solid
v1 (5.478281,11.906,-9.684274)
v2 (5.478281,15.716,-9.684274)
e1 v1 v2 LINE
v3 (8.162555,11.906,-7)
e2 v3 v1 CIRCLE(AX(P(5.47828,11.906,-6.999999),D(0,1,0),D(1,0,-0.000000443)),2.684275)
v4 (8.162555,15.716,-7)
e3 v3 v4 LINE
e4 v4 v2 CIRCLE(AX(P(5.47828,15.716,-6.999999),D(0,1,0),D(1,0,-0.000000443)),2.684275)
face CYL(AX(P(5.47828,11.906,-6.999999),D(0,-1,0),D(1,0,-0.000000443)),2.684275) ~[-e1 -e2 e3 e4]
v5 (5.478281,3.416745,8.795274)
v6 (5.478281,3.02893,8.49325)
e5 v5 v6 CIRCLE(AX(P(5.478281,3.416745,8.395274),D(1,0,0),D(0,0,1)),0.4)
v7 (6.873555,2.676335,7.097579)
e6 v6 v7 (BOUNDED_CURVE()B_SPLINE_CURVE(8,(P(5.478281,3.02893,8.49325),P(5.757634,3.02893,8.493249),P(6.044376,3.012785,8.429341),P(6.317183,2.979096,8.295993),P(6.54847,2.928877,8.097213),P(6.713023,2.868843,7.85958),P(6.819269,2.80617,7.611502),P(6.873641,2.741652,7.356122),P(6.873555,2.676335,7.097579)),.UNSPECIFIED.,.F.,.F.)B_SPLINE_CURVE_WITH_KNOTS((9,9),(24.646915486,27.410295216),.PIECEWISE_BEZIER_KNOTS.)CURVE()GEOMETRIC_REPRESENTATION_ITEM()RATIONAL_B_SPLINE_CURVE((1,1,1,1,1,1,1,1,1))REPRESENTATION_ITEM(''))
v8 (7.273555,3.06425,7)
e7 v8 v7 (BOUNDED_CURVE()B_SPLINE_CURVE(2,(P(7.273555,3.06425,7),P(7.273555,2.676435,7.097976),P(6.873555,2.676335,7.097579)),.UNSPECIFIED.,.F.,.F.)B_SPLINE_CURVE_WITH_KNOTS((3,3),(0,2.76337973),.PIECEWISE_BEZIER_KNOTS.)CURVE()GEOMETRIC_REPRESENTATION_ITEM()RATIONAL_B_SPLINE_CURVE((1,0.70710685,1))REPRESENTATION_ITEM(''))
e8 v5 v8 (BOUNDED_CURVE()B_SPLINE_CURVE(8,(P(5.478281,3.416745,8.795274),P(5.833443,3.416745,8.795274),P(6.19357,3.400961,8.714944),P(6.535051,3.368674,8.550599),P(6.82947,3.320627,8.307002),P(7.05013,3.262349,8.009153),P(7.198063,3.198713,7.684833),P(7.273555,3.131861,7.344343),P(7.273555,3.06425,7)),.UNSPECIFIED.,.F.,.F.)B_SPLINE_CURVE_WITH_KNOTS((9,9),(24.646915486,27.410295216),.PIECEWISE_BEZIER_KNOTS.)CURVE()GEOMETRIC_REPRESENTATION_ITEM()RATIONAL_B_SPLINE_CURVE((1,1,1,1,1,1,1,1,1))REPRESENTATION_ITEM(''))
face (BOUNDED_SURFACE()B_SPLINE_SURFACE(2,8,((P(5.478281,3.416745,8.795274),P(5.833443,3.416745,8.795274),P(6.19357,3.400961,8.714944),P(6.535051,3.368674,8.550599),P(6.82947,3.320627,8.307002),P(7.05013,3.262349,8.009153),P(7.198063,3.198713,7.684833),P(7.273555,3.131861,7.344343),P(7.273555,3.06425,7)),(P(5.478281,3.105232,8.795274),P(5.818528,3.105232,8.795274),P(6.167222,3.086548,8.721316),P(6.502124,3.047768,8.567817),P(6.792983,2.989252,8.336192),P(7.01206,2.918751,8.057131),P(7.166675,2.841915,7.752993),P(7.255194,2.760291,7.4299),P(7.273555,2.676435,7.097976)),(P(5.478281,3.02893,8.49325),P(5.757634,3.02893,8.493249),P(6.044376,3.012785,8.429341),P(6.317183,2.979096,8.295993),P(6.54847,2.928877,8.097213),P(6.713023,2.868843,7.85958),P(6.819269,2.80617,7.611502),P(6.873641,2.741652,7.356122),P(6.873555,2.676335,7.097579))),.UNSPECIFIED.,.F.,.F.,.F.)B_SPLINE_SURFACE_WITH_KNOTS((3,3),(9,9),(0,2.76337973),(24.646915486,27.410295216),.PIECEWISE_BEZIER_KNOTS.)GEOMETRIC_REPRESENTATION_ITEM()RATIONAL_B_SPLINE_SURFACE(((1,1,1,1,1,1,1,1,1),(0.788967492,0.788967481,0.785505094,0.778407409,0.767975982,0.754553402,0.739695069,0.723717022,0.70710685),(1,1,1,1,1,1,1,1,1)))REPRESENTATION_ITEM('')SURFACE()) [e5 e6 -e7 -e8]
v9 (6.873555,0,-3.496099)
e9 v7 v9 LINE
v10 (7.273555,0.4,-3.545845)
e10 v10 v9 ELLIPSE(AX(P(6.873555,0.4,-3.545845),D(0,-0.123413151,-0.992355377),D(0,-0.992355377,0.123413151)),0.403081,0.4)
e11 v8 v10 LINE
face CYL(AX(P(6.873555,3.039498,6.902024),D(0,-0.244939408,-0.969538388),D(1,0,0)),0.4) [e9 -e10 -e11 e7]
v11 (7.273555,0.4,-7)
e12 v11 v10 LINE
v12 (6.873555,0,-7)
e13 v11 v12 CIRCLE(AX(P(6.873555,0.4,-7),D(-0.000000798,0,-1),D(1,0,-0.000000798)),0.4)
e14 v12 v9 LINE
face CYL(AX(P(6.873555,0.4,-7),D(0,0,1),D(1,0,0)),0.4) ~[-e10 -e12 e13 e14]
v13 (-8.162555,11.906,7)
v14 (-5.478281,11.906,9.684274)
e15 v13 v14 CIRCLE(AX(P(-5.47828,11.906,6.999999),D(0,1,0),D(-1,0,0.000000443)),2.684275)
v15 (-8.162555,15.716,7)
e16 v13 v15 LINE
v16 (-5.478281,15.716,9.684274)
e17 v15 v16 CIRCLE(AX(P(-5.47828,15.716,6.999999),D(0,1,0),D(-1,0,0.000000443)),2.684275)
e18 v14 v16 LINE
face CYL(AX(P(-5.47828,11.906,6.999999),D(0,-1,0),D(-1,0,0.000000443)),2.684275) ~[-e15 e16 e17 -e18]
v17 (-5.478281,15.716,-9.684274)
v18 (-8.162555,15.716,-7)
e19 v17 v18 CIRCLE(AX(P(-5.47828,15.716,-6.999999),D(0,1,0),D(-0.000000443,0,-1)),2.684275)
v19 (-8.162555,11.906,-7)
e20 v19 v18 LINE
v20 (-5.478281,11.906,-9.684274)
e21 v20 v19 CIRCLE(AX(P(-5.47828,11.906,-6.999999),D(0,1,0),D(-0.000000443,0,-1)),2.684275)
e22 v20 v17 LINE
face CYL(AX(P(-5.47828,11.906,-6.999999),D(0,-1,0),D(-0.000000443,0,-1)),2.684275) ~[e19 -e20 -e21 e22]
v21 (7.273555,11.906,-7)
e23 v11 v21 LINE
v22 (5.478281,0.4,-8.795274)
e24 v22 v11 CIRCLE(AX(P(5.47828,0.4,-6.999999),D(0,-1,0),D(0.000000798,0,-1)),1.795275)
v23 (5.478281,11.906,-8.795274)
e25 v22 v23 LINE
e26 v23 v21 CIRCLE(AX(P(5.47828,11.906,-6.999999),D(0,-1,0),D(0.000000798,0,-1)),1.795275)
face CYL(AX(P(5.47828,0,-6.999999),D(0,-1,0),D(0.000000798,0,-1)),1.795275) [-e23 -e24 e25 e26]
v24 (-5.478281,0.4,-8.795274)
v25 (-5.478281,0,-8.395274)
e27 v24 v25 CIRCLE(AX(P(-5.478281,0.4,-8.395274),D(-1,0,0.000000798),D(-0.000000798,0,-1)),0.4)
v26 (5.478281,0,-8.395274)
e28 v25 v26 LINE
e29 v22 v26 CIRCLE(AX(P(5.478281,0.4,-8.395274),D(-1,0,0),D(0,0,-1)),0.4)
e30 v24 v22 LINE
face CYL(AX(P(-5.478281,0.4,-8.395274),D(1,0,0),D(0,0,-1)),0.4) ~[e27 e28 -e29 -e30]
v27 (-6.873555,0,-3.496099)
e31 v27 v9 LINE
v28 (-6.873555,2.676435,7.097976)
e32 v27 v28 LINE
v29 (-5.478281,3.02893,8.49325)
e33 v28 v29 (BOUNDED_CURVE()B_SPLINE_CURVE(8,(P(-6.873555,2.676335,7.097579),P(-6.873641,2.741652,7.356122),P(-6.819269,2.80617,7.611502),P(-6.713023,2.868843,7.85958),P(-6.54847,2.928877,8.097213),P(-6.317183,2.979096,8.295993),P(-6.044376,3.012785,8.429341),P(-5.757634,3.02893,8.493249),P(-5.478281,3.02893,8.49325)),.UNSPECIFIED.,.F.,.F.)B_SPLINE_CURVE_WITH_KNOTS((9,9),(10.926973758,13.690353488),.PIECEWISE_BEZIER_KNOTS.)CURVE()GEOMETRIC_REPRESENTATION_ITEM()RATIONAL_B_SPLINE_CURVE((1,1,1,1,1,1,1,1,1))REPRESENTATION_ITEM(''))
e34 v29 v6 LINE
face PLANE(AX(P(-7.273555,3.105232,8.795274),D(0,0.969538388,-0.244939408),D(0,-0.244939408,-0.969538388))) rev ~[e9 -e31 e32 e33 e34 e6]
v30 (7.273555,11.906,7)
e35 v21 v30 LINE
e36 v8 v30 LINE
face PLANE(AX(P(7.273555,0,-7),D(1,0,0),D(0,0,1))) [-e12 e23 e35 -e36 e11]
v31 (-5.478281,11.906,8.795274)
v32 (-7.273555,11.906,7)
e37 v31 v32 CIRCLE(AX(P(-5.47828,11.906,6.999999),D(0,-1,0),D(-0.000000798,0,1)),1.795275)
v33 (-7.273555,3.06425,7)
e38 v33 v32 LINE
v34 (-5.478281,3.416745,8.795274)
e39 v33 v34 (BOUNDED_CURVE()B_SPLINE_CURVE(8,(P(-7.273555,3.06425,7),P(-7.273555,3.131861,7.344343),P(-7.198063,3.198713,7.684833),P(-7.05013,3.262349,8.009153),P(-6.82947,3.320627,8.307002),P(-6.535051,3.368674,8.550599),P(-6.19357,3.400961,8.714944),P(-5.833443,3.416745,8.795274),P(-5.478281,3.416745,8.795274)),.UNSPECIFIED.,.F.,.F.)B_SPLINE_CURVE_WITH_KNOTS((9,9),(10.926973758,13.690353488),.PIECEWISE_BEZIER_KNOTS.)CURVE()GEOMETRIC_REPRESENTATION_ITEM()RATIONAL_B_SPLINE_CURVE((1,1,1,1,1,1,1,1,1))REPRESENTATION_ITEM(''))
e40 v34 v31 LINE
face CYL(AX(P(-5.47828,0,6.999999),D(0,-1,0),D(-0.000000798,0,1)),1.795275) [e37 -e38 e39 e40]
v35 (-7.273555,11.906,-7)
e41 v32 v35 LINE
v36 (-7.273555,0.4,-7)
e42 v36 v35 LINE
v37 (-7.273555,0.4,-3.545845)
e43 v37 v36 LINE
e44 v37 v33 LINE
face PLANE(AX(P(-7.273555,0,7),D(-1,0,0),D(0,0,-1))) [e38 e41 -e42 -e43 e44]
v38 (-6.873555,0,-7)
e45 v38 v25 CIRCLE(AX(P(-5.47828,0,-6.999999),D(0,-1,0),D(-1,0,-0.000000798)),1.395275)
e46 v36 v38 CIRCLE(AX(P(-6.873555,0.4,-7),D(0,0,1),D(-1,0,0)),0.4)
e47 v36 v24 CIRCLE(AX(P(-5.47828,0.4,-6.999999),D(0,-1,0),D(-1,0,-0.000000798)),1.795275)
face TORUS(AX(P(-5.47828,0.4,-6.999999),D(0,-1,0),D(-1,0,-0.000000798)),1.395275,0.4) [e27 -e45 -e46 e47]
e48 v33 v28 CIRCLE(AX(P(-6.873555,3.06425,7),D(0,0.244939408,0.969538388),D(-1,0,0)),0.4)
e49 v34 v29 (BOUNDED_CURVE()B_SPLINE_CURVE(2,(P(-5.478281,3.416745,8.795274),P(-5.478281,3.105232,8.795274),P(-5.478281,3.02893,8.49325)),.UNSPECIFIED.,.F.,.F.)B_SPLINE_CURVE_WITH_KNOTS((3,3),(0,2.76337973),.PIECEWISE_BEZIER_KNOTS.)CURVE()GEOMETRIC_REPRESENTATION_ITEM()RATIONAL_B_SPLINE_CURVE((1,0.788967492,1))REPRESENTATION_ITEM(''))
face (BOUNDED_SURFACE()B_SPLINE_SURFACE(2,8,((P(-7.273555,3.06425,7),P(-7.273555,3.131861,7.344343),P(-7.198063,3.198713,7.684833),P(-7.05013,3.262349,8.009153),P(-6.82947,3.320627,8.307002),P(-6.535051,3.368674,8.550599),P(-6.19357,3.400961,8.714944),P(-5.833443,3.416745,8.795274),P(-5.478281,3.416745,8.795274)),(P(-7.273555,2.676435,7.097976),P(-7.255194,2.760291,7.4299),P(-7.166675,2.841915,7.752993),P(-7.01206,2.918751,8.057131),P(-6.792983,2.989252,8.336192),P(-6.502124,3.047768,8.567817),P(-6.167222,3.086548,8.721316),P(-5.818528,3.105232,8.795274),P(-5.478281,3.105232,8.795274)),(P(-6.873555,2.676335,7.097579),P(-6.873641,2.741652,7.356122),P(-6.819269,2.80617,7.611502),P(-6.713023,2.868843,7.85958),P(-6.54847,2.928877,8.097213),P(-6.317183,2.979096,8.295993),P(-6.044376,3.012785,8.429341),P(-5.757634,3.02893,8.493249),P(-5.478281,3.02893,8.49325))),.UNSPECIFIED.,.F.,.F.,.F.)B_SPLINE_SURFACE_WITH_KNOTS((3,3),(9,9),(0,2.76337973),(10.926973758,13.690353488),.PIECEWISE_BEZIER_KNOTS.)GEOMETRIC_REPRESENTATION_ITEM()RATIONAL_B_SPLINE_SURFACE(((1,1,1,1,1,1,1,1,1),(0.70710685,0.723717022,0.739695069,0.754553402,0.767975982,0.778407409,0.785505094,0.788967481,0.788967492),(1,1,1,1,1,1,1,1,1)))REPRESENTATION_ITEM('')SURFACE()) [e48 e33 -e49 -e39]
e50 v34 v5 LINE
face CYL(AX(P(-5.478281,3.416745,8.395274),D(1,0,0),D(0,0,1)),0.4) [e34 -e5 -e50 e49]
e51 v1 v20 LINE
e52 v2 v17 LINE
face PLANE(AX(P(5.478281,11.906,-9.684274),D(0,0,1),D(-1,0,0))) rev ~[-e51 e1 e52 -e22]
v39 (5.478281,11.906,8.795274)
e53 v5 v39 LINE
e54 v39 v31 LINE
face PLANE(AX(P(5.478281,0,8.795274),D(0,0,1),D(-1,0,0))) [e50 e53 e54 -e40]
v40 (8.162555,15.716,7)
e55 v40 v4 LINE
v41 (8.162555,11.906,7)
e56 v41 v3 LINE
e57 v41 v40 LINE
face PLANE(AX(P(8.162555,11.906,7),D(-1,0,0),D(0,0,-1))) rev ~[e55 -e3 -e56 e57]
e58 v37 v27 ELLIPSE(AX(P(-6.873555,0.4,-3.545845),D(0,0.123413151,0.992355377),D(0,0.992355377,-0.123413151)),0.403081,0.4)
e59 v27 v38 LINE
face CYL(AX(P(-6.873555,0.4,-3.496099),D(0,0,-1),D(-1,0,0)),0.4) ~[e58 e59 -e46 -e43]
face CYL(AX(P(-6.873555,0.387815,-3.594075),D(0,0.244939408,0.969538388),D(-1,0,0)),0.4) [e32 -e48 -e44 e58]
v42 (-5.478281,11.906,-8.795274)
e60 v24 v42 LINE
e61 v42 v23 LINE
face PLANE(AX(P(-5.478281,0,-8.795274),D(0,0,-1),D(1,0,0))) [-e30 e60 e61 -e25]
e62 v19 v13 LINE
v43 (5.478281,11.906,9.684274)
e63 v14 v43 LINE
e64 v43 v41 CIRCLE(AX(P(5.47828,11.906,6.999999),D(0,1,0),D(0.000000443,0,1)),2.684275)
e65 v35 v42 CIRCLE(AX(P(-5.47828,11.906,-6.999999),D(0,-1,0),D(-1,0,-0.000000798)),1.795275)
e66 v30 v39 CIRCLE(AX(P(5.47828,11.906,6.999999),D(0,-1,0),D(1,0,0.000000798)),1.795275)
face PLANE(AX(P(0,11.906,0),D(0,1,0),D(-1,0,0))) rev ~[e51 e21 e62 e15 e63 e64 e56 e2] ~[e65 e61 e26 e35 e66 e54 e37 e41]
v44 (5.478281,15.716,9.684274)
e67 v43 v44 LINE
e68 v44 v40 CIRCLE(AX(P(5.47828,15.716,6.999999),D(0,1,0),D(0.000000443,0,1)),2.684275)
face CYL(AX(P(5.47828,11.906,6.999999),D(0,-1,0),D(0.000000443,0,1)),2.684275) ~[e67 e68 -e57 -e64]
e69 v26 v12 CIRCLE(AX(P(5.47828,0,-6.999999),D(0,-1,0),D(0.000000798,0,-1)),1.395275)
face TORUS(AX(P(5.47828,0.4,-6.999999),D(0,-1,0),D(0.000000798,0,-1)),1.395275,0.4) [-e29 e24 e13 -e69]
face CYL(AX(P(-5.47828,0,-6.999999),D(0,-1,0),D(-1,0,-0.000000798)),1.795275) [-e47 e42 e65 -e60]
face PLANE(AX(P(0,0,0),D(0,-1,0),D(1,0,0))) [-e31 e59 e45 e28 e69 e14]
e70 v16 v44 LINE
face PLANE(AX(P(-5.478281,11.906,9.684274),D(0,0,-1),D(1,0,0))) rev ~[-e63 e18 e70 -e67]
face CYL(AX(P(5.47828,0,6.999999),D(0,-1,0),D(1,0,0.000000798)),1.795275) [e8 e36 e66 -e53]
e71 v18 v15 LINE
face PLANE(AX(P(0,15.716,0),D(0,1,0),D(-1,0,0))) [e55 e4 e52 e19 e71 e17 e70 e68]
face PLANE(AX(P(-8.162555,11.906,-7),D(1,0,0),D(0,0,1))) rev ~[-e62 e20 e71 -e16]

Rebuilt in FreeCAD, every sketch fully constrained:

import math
import FreeCAD as App
import Part
import Sketcher
Q = App.Units.Quantity


def edges_at(feature, points):
    """Names of the edges that pass closest to the given points."""
    edges = feature.Shape.Edges
    near = lambda p: min(range(len(edges)), key=lambda i: edges[i].distToShape(Part.Vertex(*p))[0])
    return sorted({f"Edge{near(p) + 1}" for p in points})


def add_polygon(sketch, points):
    """Adds a closed chain of lines whose ends are joined by coincident constraints."""
    first, n = sketch.GeometryCount, len(points)
    for a, b in zip(points, points[1:] + points[:1]):
        sketch.addGeometry(Part.LineSegment(App.Vector(*a, 0), App.Vector(*b, 0)), False)
    for i in range(n):
        sketch.addConstraint(Sketcher.Constraint("Coincident", first + i, 2, first + (i + 1) % n, 1))

doc = App.newDocument("Part")
body = doc.addObject("PartDesign::Body", "Body")

# Sketch on XZ plane
sketch1 = body.newObject("Sketcher::SketchObject", "Sketch")
sketch1.AttachmentSupport = (doc.getObject("XZ_Plane"), [""])
sketch1.MapMode = "FlatFace"
sketch1.addGeometry(Part.LineSegment(App.Vector(5.5, 8.8, 0), App.Vector(-5.5, 8.8, 0)), False)
sketch1.addGeometry(Part.ArcOfCircle(Part.Circle(App.Vector(-5.5, 7, 0), App.Vector(0, 0, 1), 1.8), math.radians(90), math.radians(180)), False)
sketch1.addGeometry(Part.LineSegment(App.Vector(-7.3, 7, 0), App.Vector(-7.3, -7, 0)), False)
sketch1.addGeometry(Part.ArcOfCircle(Part.Circle(App.Vector(-5.5, -7, 0), App.Vector(0, 0, 1), 1.8), math.radians(-180), math.radians(-90)), False)
sketch1.addGeometry(Part.LineSegment(App.Vector(-5.5, -8.8, 0), App.Vector(5.5, -8.8, 0)), False)
sketch1.addGeometry(Part.ArcOfCircle(Part.Circle(App.Vector(5.5, -7, 0), App.Vector(0, 0, 1), 1.8), math.radians(-90), math.radians(0)), False)
sketch1.addGeometry(Part.LineSegment(App.Vector(7.3, -7, 0), App.Vector(7.3, 7, 0)), False)
sketch1.addGeometry(Part.ArcOfCircle(Part.Circle(App.Vector(5.5, 7, 0), App.Vector(0, 0, 1), 1.8), math.radians(0), math.radians(90)), False)
sketch1.addConstraint(Sketcher.Constraint("Tangent", 0, 2, 1, 1))
sketch1.addConstraint(Sketcher.Constraint("Tangent", 1, 2, 2, 1))
sketch1.addConstraint(Sketcher.Constraint("Tangent", 2, 2, 3, 1))
sketch1.addConstraint(Sketcher.Constraint("Tangent", 3, 2, 4, 1))
sketch1.addConstraint(Sketcher.Constraint("Tangent", 4, 2, 5, 1))
sketch1.addConstraint(Sketcher.Constraint("Tangent", 5, 2, 6, 1))
sketch1.addConstraint(Sketcher.Constraint("Tangent", 6, 2, 7, 1))
sketch1.addConstraint(Sketcher.Constraint("Tangent", 7, 2, 0, 1))
sketch1.addConstraint(Sketcher.Constraint("Horizontal", 0))
sketch1.addConstraint(Sketcher.Constraint("Vertical", 2))
sketch1.addConstraint(Sketcher.Constraint("Horizontal", 4))
sketch1.addConstraint(Sketcher.Constraint("Vertical", 6))
sketch1.addConstraint(Sketcher.Constraint("Equal", 1, 3))
sketch1.addConstraint(Sketcher.Constraint("Equal", 3, 5))
sketch1.addConstraint(Sketcher.Constraint("Equal", 5, 7))
sketch1.addConstraint(Sketcher.Constraint("Symmetric", 1, 3, 5, 3, -1, 1))
sketch1.addConstraint(Sketcher.Constraint("DistanceY", 2, 2, 2, 1, Q("14 mm")))
sketch1.addConstraint(Sketcher.Constraint("Radius", 1, Q("1.795275 mm")))
sketch1.addConstraint(Sketcher.Constraint("DistanceX", 0, 2, 0, 1, Q("10.956562 mm")))
pad1 = body.newObject("PartDesign::Pad", "Pad")
pad1.Profile = sketch1
pad1.Length = 11.906
pad1.Reversed = True

# Sketch on XZ plane
sketch2 = body.newObject("Sketcher::SketchObject", "Sketch001")
sketch2.AttachmentSupport = (doc.getObject("XZ_Plane"), [""])
sketch2.MapMode = "FlatFace"
sketch2.AttachmentOffset = App.Placement(App.Vector(0, 0, -11.906), App.Rotation())
sketch2.addGeometry(Part.ArcOfCircle(Part.Circle(App.Vector(-5.5, 7, 0), App.Vector(0, 0, 1), 2.7), math.radians(90), math.radians(180)), False)
sketch2.addGeometry(Part.LineSegment(App.Vector(-5.5, 9.7, 0), App.Vector(5.5, 9.7, 0)), False)
sketch2.addGeometry(Part.ArcOfCircle(Part.Circle(App.Vector(5.5, 7, 0), App.Vector(0, 0, 1), 2.7), math.radians(0), math.radians(90)), False)
sketch2.addGeometry(Part.LineSegment(App.Vector(8.2, 7, 0), App.Vector(8.2, -7, 0)), False)
sketch2.addGeometry(Part.ArcOfCircle(Part.Circle(App.Vector(5.5, -7, 0), App.Vector(0, 0, 1), 2.7), math.radians(-90), math.radians(0)), False)
sketch2.addGeometry(Part.LineSegment(App.Vector(5.5, -9.7, 0), App.Vector(-5.5, -9.7, 0)), False)
sketch2.addGeometry(Part.ArcOfCircle(Part.Circle(App.Vector(-5.5, -7, 0), App.Vector(0, 0, 1), 2.7), math.radians(-180), math.radians(-90)), False)
sketch2.addGeometry(Part.LineSegment(App.Vector(-8.2, -7, 0), App.Vector(-8.2, 7, 0)), False)
sketch2.addConstraint(Sketcher.Constraint("Tangent", 0, 1, 1, 1))
sketch2.addConstraint(Sketcher.Constraint("Tangent", 1, 2, 2, 2))
sketch2.addConstraint(Sketcher.Constraint("Tangent", 2, 1, 3, 1))
sketch2.addConstraint(Sketcher.Constraint("Tangent", 3, 2, 4, 2))
sketch2.addConstraint(Sketcher.Constraint("Tangent", 4, 1, 5, 1))
sketch2.addConstraint(Sketcher.Constraint("Tangent", 5, 2, 6, 2))
sketch2.addConstraint(Sketcher.Constraint("Tangent", 6, 1, 7, 1))
sketch2.addConstraint(Sketcher.Constraint("Tangent", 7, 2, 0, 2))
sketch2.addConstraint(Sketcher.Constraint("Horizontal", 1))
sketch2.addConstraint(Sketcher.Constraint("Vertical", 3))
sketch2.addConstraint(Sketcher.Constraint("Horizontal", 5))
sketch2.addConstraint(Sketcher.Constraint("Vertical", 7))
sketch2.addConstraint(Sketcher.Constraint("Equal", 0, 2))
sketch2.addConstraint(Sketcher.Constraint("Equal", 2, 4))
sketch2.addConstraint(Sketcher.Constraint("Equal", 4, 6))
sketch2.addConstraint(Sketcher.Constraint("Symmetric", 0, 3, 4, 3, -1, 1))
sketch2.addConstraint(Sketcher.Constraint("DistanceY", 3, 2, 3, 1, Q("14 mm")))
sketch2.addConstraint(Sketcher.Constraint("Radius", 0, Q("2.684275 mm")))
sketch2.addConstraint(Sketcher.Constraint("DistanceX", 1, 1, 1, 2, Q("10.956562 mm")))
pad2 = body.newObject("PartDesign::Pad", "Pad001")
pad2.Profile = sketch2
pad2.Length = 3.81
pad2.Reversed = True

# Sketch on YZ plane
sketch3 = body.newObject("Sketcher::SketchObject", "Sketch002")
sketch3.AttachmentSupport = (doc.getObject("YZ_Plane"), [""])
sketch3.MapMode = "FlatFace"
sketch3.AttachmentOffset = App.Placement(App.Vector(0, 0, -7.273555), App.Rotation())
add_polygon(sketch3, [(0, -3.5), (0, 8.8), (3.1, 8.8)])  # lines 0-2
sketch3.addConstraint(Sketcher.Constraint("Vertical", 0))
sketch3.addConstraint(Sketcher.Constraint("Horizontal", 1))
sketch3.addConstraint(Sketcher.Constraint("PointOnObject", 0, 2, -2))
sketch3.addConstraint(Sketcher.Constraint("DistanceX", 1, 1, 1, 2, Q("3.105232 mm")))
sketch3.addConstraint(Sketcher.Constraint("DistanceY", 2, 2, -1, 1, Q("3.496099 mm")))
sketch3.addConstraint(Sketcher.Constraint("Distance", 2, Q("12.677552 mm")))
pocket1 = body.newObject("PartDesign::Pocket", "Pocket")
pocket1.Profile = sketch3
pocket1.Type = "ThroughAll"
pocket1.Reversed = True
doc.recompute()

fillet = body.newObject("PartDesign::Fillet", "Fillet")
fillet.Base = (pocket1, edges_at(pocket1, [
    (0, 3.105, 8.795),
    (6.758, 2.97, 8.26),
    (7.274, 1.326, 1.752),
    (7.274, 0, -5.248),
    (6.748, 0, -8.269),
    (0, 0, -8.795),
    (-7.274, 0, -5.248),
    (-6.748, 0, -8.269),
    (-7.274, 1.326, 1.752),
    (-6.758, 2.97, 8.26),
]))
fillet.Radius = 0.4

doc.recompute()
